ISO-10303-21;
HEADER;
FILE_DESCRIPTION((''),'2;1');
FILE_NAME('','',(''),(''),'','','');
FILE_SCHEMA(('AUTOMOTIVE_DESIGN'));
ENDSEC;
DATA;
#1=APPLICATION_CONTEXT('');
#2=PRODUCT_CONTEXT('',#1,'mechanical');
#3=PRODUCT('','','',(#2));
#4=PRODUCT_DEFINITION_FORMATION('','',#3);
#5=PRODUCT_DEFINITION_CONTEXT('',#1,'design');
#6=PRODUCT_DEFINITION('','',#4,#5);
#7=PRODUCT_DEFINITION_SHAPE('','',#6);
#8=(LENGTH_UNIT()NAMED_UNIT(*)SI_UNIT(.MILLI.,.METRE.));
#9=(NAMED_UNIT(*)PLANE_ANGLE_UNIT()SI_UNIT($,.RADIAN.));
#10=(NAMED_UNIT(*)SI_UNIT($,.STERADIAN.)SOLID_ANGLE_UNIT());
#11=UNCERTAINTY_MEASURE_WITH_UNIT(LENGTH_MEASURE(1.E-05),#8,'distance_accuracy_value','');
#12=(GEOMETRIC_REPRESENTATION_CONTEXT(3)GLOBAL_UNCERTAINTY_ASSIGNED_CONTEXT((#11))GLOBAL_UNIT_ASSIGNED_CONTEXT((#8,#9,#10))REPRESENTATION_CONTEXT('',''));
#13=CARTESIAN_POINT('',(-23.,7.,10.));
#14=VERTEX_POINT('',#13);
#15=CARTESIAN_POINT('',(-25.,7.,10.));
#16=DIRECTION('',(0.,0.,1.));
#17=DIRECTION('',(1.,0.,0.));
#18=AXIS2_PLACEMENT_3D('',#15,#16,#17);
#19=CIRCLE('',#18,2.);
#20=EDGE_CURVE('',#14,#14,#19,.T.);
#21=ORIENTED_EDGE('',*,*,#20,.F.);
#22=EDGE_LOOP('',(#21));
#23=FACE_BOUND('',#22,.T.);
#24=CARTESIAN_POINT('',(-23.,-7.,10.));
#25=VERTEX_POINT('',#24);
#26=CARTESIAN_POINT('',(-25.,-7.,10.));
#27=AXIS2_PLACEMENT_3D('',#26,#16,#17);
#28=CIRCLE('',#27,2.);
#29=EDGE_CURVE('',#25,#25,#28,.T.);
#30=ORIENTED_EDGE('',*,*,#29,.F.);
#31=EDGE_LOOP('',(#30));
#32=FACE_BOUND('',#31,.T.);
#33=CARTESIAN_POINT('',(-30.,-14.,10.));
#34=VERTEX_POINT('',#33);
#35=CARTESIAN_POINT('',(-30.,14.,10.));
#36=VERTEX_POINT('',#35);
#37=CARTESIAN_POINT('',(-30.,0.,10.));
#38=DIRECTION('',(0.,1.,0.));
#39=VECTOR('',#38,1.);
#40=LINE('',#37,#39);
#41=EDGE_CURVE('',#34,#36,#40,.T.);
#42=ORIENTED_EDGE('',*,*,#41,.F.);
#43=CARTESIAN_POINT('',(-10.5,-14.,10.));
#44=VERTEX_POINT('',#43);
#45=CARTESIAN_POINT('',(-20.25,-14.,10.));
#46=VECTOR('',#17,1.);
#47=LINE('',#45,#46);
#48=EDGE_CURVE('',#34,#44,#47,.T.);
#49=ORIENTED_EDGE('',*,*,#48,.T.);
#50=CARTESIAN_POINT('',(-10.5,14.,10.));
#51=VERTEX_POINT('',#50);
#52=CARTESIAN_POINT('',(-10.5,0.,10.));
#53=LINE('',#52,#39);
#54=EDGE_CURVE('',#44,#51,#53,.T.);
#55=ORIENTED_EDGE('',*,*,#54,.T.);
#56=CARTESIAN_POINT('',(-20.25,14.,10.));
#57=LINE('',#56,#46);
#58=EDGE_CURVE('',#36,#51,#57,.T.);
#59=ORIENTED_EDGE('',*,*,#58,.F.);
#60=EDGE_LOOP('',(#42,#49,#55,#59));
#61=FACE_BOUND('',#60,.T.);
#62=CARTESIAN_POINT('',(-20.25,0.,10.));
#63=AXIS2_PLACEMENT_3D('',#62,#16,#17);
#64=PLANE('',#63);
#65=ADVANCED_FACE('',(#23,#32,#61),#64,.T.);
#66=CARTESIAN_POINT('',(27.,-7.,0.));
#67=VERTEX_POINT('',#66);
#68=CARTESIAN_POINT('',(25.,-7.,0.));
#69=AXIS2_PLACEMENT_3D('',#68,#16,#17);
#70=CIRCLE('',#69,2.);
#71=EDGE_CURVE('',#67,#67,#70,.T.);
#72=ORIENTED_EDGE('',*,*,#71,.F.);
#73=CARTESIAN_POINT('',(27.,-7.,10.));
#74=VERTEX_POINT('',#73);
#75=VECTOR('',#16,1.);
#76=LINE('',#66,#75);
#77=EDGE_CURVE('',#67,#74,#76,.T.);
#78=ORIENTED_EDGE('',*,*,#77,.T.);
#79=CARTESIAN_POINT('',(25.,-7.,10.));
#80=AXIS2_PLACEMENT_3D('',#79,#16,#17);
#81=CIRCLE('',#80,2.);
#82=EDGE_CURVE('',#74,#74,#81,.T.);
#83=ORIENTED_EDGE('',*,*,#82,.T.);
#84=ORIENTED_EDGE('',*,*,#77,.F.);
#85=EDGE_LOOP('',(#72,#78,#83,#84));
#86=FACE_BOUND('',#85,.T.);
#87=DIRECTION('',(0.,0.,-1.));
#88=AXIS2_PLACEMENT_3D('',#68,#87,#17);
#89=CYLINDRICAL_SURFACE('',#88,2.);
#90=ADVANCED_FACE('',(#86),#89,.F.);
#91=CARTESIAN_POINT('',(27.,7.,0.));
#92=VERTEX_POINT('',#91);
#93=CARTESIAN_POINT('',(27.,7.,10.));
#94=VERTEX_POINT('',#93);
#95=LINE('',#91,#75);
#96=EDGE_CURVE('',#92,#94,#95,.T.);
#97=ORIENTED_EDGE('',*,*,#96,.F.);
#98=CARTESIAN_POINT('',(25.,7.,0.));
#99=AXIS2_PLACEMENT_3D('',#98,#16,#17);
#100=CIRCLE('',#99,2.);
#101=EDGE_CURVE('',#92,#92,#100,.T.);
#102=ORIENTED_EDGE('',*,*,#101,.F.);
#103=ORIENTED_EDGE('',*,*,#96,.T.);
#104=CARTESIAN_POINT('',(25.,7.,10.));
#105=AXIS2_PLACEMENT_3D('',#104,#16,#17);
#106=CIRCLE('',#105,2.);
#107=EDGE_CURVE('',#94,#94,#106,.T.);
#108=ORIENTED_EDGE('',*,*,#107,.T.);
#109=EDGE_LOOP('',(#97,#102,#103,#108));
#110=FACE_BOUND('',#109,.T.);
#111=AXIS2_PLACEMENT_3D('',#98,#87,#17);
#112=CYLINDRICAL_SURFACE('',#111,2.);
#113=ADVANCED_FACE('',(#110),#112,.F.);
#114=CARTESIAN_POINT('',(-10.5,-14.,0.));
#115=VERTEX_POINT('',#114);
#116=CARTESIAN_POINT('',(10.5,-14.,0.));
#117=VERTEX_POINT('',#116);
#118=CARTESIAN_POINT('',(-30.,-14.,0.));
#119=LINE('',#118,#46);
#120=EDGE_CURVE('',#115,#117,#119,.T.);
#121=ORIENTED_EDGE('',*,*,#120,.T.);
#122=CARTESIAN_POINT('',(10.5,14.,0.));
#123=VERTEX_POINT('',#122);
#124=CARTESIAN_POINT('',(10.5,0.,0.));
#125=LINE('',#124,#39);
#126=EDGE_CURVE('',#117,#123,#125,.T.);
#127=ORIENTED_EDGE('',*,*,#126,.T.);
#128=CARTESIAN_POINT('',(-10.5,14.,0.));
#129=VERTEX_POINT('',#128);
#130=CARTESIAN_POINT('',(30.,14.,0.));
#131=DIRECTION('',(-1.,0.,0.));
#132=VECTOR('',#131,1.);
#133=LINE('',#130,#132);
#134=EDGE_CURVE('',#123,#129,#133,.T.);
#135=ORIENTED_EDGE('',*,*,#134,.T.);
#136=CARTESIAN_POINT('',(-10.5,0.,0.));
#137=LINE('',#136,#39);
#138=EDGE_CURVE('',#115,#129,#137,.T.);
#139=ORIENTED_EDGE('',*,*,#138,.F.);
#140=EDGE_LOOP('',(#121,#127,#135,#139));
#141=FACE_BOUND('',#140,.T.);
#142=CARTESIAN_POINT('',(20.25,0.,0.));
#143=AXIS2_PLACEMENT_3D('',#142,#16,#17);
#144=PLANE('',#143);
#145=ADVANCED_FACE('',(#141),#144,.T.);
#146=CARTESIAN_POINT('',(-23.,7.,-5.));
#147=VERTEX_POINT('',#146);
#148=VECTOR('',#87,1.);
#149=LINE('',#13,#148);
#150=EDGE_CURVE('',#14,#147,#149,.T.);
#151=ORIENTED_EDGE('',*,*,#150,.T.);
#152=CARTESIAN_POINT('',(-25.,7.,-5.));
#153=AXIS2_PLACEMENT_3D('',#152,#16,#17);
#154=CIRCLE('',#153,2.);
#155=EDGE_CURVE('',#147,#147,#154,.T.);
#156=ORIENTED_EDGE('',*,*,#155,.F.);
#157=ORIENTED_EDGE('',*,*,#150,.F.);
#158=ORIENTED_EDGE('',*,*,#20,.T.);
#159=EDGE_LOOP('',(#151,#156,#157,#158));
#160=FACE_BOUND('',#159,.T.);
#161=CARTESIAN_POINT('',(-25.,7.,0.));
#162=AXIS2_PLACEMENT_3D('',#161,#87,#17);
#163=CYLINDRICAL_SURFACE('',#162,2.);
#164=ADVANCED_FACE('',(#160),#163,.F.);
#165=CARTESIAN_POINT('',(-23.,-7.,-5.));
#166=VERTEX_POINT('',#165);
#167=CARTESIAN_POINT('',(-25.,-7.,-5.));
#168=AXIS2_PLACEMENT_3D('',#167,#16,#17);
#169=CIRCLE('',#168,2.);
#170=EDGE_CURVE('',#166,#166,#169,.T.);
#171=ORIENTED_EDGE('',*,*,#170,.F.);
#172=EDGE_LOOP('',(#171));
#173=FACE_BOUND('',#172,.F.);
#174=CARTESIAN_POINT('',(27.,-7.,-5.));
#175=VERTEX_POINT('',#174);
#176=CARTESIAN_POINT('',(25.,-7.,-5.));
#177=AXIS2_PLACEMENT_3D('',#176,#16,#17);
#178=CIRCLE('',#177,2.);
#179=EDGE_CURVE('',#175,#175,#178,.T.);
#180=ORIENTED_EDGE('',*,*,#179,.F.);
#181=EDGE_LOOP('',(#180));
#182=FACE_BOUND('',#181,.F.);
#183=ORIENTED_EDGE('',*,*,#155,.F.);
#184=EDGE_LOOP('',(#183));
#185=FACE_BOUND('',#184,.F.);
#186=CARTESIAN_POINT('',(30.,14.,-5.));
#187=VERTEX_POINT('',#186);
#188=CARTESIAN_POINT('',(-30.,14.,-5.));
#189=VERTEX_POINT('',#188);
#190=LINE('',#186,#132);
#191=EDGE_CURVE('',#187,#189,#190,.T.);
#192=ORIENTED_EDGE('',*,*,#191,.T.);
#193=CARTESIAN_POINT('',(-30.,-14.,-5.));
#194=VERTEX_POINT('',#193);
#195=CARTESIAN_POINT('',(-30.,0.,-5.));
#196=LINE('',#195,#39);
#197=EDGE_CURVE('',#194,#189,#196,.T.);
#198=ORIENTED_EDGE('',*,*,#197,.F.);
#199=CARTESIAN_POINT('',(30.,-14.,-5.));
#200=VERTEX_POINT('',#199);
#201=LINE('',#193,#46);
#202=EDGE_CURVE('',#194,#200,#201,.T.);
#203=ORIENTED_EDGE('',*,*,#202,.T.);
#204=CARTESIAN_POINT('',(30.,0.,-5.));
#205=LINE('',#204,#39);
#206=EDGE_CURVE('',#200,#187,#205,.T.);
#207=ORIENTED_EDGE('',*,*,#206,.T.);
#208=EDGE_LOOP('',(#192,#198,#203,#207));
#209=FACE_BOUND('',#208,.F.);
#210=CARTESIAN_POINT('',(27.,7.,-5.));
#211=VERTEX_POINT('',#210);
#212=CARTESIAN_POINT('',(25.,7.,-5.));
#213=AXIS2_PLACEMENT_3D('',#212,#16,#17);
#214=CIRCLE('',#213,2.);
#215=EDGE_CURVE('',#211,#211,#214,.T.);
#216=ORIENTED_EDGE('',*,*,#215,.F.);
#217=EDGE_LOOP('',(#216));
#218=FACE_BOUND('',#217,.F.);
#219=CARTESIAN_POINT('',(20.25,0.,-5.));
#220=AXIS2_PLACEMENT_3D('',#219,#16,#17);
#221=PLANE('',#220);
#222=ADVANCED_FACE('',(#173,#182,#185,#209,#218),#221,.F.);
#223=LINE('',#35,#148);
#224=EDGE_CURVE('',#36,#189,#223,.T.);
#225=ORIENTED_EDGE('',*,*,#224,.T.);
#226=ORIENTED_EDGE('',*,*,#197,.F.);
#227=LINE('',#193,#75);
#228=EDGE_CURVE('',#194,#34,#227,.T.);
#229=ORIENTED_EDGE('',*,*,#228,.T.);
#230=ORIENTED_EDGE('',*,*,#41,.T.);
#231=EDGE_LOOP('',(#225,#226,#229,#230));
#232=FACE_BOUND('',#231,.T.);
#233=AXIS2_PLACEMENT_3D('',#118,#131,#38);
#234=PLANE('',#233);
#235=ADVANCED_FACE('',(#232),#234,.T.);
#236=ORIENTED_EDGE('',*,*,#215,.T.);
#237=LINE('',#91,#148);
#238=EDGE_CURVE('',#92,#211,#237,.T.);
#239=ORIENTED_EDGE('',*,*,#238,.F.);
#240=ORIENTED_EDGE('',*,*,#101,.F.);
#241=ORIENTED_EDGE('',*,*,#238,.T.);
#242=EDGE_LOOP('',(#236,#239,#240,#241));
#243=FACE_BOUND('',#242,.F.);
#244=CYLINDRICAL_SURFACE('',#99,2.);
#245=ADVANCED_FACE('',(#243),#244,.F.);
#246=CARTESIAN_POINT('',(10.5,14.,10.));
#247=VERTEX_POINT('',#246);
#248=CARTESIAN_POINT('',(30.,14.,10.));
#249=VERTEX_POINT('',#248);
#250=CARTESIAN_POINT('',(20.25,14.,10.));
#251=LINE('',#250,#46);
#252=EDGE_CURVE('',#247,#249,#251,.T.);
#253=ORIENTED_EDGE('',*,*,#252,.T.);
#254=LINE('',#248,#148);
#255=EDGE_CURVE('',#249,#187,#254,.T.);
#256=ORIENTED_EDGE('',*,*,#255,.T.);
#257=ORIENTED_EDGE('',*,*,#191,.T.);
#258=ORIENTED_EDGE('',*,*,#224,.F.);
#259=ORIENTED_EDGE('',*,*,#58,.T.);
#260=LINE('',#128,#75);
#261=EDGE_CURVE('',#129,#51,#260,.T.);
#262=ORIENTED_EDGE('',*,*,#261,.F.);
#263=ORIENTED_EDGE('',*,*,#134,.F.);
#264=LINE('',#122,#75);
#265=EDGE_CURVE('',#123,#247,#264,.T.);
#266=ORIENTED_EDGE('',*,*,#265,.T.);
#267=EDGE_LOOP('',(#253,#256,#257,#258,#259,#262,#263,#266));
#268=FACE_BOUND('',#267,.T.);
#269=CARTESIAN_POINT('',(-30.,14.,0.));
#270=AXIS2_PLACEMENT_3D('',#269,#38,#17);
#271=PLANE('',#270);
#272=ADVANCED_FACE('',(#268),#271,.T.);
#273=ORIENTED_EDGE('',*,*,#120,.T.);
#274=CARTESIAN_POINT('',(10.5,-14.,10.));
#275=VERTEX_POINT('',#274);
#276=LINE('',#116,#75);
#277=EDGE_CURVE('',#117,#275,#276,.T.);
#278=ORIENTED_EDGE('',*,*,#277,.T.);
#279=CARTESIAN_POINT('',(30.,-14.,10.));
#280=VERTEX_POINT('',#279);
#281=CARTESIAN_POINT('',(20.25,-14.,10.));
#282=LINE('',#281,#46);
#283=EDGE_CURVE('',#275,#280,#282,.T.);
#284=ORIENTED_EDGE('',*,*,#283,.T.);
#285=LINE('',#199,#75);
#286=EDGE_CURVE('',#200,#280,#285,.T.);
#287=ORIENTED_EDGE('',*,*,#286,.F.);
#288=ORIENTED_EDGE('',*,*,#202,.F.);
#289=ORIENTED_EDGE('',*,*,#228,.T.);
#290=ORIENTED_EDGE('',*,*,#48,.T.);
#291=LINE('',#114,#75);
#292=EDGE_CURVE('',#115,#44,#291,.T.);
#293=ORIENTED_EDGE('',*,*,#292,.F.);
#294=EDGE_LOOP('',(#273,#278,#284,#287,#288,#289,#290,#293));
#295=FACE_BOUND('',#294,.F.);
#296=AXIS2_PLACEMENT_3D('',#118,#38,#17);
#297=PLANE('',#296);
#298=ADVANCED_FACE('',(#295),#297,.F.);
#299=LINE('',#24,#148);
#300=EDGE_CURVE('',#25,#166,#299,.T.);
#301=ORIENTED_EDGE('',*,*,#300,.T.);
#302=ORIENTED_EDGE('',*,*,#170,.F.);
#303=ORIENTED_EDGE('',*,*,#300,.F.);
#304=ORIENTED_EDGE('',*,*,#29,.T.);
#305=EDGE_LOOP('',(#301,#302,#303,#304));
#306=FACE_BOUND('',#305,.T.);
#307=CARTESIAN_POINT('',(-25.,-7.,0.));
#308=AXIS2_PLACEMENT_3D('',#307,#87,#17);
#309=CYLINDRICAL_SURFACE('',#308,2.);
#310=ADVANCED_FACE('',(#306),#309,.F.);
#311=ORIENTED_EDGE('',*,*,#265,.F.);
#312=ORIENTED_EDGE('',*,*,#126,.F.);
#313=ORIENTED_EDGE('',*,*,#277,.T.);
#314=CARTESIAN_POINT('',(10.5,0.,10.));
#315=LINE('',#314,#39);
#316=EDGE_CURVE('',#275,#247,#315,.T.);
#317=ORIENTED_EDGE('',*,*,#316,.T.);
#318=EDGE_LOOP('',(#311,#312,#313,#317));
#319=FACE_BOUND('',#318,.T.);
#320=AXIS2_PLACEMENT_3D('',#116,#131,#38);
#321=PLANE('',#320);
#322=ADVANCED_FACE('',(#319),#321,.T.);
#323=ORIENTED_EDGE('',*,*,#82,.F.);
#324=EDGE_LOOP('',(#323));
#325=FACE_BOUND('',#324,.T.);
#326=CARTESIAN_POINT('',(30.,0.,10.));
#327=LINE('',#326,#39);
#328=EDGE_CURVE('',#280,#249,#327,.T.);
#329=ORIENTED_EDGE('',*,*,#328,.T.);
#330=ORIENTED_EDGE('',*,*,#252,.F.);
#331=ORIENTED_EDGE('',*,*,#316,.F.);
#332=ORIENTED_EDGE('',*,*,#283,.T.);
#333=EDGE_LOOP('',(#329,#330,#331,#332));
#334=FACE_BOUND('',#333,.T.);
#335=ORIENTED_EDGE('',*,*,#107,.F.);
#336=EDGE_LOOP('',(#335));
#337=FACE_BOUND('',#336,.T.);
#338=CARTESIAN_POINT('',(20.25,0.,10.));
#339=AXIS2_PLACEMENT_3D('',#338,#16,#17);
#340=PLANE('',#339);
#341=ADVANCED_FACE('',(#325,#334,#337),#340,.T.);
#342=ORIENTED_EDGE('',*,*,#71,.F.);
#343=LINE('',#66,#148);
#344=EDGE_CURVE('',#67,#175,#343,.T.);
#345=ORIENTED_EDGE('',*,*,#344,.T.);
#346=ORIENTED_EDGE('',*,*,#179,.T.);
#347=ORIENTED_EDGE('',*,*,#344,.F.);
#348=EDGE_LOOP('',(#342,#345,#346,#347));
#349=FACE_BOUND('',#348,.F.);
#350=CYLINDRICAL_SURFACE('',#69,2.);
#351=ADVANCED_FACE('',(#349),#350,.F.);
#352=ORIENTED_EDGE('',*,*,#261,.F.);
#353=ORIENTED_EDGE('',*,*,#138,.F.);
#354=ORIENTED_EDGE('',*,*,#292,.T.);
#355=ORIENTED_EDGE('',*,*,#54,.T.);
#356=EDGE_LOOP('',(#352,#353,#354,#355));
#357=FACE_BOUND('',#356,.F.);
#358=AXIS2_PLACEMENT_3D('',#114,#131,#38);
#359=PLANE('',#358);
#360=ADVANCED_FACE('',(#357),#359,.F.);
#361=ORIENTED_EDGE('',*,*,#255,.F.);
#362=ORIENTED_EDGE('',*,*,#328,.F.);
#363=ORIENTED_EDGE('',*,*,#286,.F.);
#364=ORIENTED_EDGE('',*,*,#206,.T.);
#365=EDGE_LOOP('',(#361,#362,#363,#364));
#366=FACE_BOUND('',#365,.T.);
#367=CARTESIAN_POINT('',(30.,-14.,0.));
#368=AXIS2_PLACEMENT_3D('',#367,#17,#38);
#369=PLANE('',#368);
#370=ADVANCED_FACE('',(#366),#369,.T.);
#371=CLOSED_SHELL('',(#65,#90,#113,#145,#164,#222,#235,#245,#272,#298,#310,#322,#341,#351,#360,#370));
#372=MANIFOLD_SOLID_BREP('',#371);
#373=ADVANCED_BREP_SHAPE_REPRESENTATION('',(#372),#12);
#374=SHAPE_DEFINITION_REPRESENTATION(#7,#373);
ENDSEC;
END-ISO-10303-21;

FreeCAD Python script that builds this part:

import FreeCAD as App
import Part
import Sketcher

V = App.Vector
Q = App.Units.Quantity

doc = App.newDocument("Part")
body = doc.addObject("PartDesign::Body", "Body")

sketch1 = body.newObject("Sketcher::SketchObject", "Sketch")
sketch1.AttachmentSupport = (doc.getObject("XY_Plane"), [""])
sketch1.MapMode = "FlatFace"
sketch1.addGeometry(Part.LineSegment(V(30, -14, 0), V(30, 14, 0)), False)
sketch1.addGeometry(Part.LineSegment(V(30, 14, 0), V(-30, 14, 0)), False)
sketch1.addGeometry(Part.LineSegment(V(-30, 14, 0), V(-30, -14, 0)), False)
sketch1.addGeometry(Part.LineSegment(V(-30, -14, 0), V(30, -14, 0)), False)
sketch1.addGeometry(Part.Circle(V(-25, -7, 0), V(0, 0, 1), 2), False)
sketch1.addGeometry(Part.Circle(V(25, -7, 0), V(0, 0, 1), 2), False)
sketch1.addGeometry(Part.Circle(V(-25, 7, 0), V(0, 0, 1), 2), False)
sketch1.addGeometry(Part.Circle(V(25, 7, 0), V(0, 0, 1), 2), False)
sketch1.addConstraint(Sketcher.Constraint("Coincident", 0, 2, 1, 1))
sketch1.addConstraint(Sketcher.Constraint("Coincident", 1, 2, 2, 1))
sketch1.addConstraint(Sketcher.Constraint("Coincident", 2, 2, 3, 1))
sketch1.addConstraint(Sketcher.Constraint("Coincident", 3, 2, 0, 1))
sketch1.addConstraint(Sketcher.Constraint("Vertical", 0))
sketch1.addConstraint(Sketcher.Constraint("Horizontal", 1))
sketch1.addConstraint(Sketcher.Constraint("Vertical", 2))
sketch1.addConstraint(Sketcher.Constraint("Horizontal", 3))
sketch1.addConstraint(Sketcher.Constraint("Equal", 4, 5))
sketch1.addConstraint(Sketcher.Constraint("Equal", 5, 6))
sketch1.addConstraint(Sketcher.Constraint("Equal", 6, 7))
sketch1.addConstraint(Sketcher.Constraint("Symmetric", 5, 3, 6, 3, -1, 1))
sketch1.addConstraint(Sketcher.Constraint("Symmetric", 4, 3, 7, 3, -1, 1))
sketch1.addConstraint(Sketcher.Constraint("Symmetric", 0, 2, 2, 2, -1, 1))
sketch1.addConstraint(Sketcher.Constraint("Symmetric", 4, 3, 5, 3, -2))
sketch1.addConstraint(Sketcher.Constraint("Diameter", 4, Q("4 mm")))
sketch1.addConstraint(Sketcher.Constraint("DistanceX", 1, 2, 1, 1, Q("60 mm")))
sketch1.addConstraint(Sketcher.Constraint("DistanceY", 0, 1, 0, 2, Q("28 mm")))
sketch1.addConstraint(Sketcher.Constraint("DistanceX", 4, 3, -1, 1, Q("25 mm")))
sketch1.addConstraint(Sketcher.Constraint("DistanceY", 4, 3, -1, 1, Q("7 mm")))
pad1 = body.newObject("PartDesign::Pad", "Pad")
pad1.Profile = sketch1
pad1.Length = 5
pad1.Reversed = True

sketch2 = body.newObject("Sketcher::SketchObject", "Sketch001")
sketch2.AttachmentSupport = (doc.getObject("XY_Plane"), [""])
sketch2.MapMode = "FlatFace"
sketch2.addGeometry(Part.LineSegment(V(-30, 14, 0), V(-30, -14, 0)), False)
sketch2.addGeometry(Part.LineSegment(V(-30, -14, 0), V(-10.5, -14, 0)), False)
sketch2.addGeometry(Part.LineSegment(V(-10.5, -14, 0), V(-10.5, 14, 0)), False)
sketch2.addGeometry(Part.LineSegment(V(-10.5, 14, 0), V(-30, 14, 0)), False)
sketch2.addGeometry(Part.Circle(V(-25, -7, 0), V(0, 0, 1), 2), False)
sketch2.addGeometry(Part.Circle(V(-25, 7, 0), V(0, 0, 1), 2), False)
sketch2.addGeometry(Part.LineSegment(V(10.5, 14, 0), V(10.5, -14, 0)), False)
sketch2.addGeometry(Part.LineSegment(V(10.5, -14, 0), V(30, -14, 0)), False)
sketch2.addGeometry(Part.LineSegment(V(30, -14, 0), V(30, 14, 0)), False)
sketch2.addGeometry(Part.LineSegment(V(30, 14, 0), V(10.5, 14, 0)), False)
sketch2.addGeometry(Part.Circle(V(25, -7, 0), V(0, 0, 1), 2), False)
sketch2.addGeometry(Part.Circle(V(25, 7, 0), V(0, 0, 1), 2), False)
sketch2.addConstraint(Sketcher.Constraint("Coincident", 0, 2, 1, 1))
sketch2.addConstraint(Sketcher.Constraint("Coincident", 1, 2, 2, 1))
sketch2.addConstraint(Sketcher.Constraint("Coincident", 2, 2, 3, 1))
sketch2.addConstraint(Sketcher.Constraint("Coincident", 3, 2, 0, 1))
sketch2.addConstraint(Sketcher.Constraint("Coincident", 6, 2, 7, 1))
sketch2.addConstraint(Sketcher.Constraint("Coincident", 7, 2, 8, 1))
sketch2.addConstraint(Sketcher.Constraint("Coincident", 8, 2, 9, 1))
sketch2.addConstraint(Sketcher.Constraint("Coincident", 9, 2, 6, 1))
sketch2.addConstraint(Sketcher.Constraint("Vertical", 0))
sketch2.addConstraint(Sketcher.Constraint("Horizontal", 1))
sketch2.addConstraint(Sketcher.Constraint("Vertical", 2))
sketch2.addConstraint(Sketcher.Constraint("Horizontal", 3))
sketch2.addConstraint(Sketcher.Constraint("Vertical", 6))
sketch2.addConstraint(Sketcher.Constraint("Horizontal", 7))
sketch2.addConstraint(Sketcher.Constraint("Vertical", 8))
sketch2.addConstraint(Sketcher.Constraint("Horizontal", 9))
sketch2.addConstraint(Sketcher.Constraint("Equal", 4, 5))
sketch2.addConstraint(Sketcher.Constraint("Equal", 5, 10))
sketch2.addConstraint(Sketcher.Constraint("Equal", 10, 11))
sketch2.addConstraint(Sketcher.Constraint("Symmetric", 5, 3, 10, 3, -1, 1))
sketch2.addConstraint(Sketcher.Constraint("Symmetric", 4, 3, 11, 3, -1, 1))
sketch2.addConstraint(Sketcher.Constraint("Symmetric", 2, 2, 6, 2, -1, 1))
sketch2.addConstraint(Sketcher.Constraint("Symmetric", 0, 2, 8, 2, -1, 1))
sketch2.addConstraint(Sketcher.Constraint("Symmetric", 4, 3, 10, 3, -2))
sketch2.addConstraint(Sketcher.Constraint("Horizontal", 1, 2, 6, 2))
sketch2.addConstraint(Sketcher.Constraint("Diameter", 4, Q("4 mm")))
sketch2.addConstraint(Sketcher.Constraint("DistanceY", 0, 2, 0, 1, Q("28 mm")))
sketch2.addConstraint(Sketcher.Constraint("DistanceX", 1, 1, 1, 2, Q("19.5 mm")))
sketch2.addConstraint(Sketcher.Constraint("DistanceX", 4, 3, -1, 1, Q("25 mm")))
sketch2.addConstraint(Sketcher.Constraint("DistanceY", 4, 3, -1, 1, Q("7 mm")))
sketch2.addConstraint(Sketcher.Constraint("DistanceX", 0, 2, -1, 1, Q("30 mm")))
pad2 = body.newObject("PartDesign::Pad", "Pad001")
pad2.Profile = sketch2
pad2.Length = 10

doc.recompute()
